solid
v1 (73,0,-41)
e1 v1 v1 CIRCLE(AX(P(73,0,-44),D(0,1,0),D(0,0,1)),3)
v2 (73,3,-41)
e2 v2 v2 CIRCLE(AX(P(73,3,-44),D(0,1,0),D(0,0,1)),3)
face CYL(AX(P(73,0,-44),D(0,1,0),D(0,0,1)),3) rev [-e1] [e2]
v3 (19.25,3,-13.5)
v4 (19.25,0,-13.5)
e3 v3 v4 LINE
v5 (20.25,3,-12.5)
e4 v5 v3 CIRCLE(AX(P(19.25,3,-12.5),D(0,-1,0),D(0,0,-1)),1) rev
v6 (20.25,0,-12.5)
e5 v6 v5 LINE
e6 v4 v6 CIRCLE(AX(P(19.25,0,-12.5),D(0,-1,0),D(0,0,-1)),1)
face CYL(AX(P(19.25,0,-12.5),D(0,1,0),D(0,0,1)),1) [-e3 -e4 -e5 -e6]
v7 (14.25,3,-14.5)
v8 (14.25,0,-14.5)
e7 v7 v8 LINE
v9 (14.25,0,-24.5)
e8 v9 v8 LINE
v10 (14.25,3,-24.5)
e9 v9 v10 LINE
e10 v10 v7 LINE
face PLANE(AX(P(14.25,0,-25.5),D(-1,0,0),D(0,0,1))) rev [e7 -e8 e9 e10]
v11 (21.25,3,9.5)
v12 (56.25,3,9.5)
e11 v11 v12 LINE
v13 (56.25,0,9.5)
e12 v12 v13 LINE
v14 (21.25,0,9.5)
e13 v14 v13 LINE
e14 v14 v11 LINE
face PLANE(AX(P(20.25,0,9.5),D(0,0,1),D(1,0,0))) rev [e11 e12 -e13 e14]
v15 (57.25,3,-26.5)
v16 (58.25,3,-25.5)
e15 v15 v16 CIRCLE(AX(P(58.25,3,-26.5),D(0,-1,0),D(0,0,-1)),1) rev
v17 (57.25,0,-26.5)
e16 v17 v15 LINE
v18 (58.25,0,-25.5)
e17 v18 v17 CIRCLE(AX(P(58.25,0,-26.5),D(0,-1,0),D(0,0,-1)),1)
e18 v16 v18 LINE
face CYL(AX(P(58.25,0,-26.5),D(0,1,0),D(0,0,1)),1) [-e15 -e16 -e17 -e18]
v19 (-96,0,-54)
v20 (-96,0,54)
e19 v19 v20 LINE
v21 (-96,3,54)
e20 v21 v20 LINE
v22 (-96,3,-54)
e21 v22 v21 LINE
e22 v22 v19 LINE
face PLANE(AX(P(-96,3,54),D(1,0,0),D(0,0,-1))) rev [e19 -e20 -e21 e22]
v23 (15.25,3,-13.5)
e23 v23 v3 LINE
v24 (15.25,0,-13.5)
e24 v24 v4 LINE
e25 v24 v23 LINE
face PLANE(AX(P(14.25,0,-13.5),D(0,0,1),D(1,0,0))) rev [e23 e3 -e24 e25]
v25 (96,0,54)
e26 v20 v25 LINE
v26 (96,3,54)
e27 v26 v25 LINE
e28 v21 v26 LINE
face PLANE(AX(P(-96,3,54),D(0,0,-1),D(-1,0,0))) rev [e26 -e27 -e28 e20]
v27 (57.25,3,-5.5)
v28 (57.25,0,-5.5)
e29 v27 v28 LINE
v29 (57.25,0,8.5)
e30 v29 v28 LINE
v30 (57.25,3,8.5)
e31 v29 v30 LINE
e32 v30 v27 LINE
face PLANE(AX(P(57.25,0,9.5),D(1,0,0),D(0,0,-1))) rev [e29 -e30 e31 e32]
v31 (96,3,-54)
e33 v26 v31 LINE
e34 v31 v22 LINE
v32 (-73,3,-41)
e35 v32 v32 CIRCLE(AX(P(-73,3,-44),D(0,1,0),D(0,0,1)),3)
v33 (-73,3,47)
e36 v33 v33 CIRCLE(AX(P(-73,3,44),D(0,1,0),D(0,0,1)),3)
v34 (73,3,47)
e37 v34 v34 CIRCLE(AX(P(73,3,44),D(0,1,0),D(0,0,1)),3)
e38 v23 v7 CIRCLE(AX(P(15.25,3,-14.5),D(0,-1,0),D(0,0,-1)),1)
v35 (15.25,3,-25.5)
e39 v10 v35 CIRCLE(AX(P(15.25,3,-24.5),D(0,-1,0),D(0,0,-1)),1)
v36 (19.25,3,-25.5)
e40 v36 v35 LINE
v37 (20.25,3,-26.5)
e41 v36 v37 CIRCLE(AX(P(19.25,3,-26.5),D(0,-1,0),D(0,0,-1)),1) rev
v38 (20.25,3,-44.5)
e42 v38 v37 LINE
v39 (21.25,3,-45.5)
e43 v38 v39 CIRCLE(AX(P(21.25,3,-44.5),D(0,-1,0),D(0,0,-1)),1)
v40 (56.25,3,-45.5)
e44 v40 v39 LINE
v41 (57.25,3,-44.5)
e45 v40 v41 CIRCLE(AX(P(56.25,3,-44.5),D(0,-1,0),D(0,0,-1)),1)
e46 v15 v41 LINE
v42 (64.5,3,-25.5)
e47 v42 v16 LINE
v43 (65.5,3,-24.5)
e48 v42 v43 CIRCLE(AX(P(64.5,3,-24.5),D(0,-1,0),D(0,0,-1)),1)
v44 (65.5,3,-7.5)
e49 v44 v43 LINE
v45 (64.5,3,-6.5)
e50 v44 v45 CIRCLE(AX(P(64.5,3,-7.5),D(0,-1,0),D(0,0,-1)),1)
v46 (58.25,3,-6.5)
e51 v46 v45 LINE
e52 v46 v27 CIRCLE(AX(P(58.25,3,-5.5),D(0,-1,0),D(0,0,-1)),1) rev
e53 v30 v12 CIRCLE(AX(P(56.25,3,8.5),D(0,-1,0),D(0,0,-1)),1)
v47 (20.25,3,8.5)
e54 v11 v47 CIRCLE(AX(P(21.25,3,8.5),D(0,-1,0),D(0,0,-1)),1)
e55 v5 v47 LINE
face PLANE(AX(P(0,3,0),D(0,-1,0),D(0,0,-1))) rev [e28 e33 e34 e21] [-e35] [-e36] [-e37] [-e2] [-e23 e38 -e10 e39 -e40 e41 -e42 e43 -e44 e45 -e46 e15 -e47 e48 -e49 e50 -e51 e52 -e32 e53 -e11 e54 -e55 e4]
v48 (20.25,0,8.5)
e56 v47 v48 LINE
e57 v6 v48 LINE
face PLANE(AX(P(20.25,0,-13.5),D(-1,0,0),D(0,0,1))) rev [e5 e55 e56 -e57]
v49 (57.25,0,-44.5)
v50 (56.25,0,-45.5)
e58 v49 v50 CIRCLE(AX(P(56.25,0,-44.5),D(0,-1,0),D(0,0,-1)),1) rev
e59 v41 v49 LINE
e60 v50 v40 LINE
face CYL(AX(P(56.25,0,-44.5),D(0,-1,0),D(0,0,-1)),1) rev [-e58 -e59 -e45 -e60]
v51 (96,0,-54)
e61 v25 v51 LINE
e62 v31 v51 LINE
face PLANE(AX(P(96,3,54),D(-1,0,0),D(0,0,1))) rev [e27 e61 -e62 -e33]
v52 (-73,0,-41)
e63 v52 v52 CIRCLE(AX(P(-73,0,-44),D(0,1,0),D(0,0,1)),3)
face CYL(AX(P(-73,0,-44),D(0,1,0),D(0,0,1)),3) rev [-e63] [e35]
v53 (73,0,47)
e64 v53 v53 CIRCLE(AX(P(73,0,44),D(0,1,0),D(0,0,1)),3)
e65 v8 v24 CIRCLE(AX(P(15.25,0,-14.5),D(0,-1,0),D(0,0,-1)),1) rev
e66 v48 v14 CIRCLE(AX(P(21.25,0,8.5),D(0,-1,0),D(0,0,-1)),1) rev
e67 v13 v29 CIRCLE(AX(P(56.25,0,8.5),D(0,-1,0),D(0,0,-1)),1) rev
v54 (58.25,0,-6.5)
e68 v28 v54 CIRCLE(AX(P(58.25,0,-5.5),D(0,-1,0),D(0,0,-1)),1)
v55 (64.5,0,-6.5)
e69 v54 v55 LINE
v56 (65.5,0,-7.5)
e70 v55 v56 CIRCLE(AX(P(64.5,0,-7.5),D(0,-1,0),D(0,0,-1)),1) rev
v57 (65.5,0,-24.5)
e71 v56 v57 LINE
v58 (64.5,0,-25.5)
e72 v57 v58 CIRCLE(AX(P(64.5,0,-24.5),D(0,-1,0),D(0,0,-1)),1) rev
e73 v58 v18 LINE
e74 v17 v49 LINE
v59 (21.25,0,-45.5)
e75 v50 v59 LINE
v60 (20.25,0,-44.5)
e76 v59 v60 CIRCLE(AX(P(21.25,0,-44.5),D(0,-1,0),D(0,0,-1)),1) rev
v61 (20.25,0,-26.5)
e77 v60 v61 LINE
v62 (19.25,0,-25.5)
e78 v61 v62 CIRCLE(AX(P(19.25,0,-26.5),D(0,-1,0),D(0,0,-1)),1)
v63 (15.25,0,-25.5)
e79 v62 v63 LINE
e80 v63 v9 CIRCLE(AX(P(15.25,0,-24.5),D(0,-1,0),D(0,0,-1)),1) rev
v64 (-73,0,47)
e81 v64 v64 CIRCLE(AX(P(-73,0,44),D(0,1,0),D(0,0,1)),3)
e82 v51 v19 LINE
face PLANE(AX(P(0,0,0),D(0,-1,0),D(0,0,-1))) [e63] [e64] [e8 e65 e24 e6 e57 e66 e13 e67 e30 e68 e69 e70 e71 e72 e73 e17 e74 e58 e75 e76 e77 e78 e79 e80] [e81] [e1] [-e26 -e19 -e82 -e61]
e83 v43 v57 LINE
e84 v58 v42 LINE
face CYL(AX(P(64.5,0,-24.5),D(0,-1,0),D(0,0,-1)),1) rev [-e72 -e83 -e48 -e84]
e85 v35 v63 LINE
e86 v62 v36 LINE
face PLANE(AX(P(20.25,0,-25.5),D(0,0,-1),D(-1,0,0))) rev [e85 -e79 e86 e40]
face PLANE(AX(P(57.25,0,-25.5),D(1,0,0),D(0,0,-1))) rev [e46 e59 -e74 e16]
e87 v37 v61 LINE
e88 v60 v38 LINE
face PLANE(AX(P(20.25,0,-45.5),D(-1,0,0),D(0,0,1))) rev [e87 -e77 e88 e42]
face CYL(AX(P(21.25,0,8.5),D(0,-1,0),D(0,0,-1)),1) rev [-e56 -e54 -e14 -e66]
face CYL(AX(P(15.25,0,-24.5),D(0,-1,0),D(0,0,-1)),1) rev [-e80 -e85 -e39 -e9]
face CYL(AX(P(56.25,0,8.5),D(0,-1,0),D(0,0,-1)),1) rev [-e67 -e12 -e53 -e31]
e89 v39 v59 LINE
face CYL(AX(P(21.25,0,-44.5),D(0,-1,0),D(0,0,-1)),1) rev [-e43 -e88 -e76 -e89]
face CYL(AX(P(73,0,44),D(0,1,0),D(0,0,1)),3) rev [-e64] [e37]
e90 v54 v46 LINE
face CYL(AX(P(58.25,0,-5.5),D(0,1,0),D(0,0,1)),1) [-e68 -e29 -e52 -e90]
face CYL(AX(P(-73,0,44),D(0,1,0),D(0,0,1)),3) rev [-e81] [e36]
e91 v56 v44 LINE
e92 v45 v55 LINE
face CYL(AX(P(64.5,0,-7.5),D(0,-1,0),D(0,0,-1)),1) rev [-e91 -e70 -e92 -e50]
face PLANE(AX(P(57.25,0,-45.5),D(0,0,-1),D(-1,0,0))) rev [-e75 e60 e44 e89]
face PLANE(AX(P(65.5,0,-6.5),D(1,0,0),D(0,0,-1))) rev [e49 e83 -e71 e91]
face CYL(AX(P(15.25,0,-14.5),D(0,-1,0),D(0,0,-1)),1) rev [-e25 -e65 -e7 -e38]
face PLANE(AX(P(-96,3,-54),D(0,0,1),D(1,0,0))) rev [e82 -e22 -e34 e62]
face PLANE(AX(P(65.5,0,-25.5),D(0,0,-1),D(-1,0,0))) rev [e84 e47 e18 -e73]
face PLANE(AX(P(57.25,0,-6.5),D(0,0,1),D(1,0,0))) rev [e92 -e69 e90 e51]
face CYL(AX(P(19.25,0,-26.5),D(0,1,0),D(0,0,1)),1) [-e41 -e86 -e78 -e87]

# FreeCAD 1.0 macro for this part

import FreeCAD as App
import Part
import Sketcher


def edges_at(feature, points):
    """Names of the edges that pass closest to the given points."""
    edges = feature.Shape.Edges
    near = lambda p: min(range(len(edges)), key=lambda i: edges[i].distToShape(Part.Vertex(*p))[0])
    return sorted({f"Edge{near(p) + 1}" for p in points})


def add_polygon(sketch, points):
    """Adds a closed chain of lines whose ends are joined by coincident constraints."""
    first, n = sketch.GeometryCount, len(points)
    for a, b in zip(points, points[1:] + points[:1]):
        sketch.addGeometry(Part.LineSegment(App.Vector(*a, 0), App.Vector(*b, 0)), False)
    for i in range(n):
        sketch.addConstraint(Sketcher.Constraint("Coincident", first + i, 2, first + (i + 1) % n, 1))

doc = App.newDocument("Part")
params = doc.addObject("Spreadsheet::Sheet", "Params")
for row, (alias, value) in enumerate([
    ("sketch1_width", "192 mm"),
    ("sketch1_height", "108 mm"),
    ("pad1_length", "3 mm"),
    ("sketch2_diameter", "6 mm"),
    ("sketch2_width", "6 mm"),
    ("sketch2_width2", "37 mm"),
    ("sketch2_height", "20 mm"),
    ("sketch2_height2", "12 mm"),
    ("fillet_radius", "1 mm"),
], start=1):
    params.set(f"A{row}", alias)
    params.set(f"B{row}", "=" + value)
    params.setAlias(f"B{row}", alias)

body = doc.addObject("PartDesign::Body", "Body")

# Sketch on XZ plane
sketch1 = body.newObject("Sketcher::SketchObject", "Sketch")
sketch1.AttachmentSupport = (doc.getObject("XZ_Plane"), [""])
sketch1.MapMode = "FlatFace"
add_polygon(sketch1, [(-96, -54), (-96, 54), (96, 54), (96, -54)])  # lines 0-3
sketch1.addConstraint(Sketcher.Constraint("Vertical", 0))
sketch1.addConstraint(Sketcher.Constraint("Horizontal", 1))
sketch1.addConstraint(Sketcher.Constraint("Vertical", 2))
sketch1.addConstraint(Sketcher.Constraint("Horizontal", 3))
sketch1.addConstraint(Sketcher.Constraint("Symmetric", 0, 2, 2, 2, -1, 1))
sketch1.addConstraint(Sketcher.Constraint("DistanceX", 1, 1, 1, 2, 192.0))
sketch1.addConstraint(Sketcher.Constraint("DistanceY", 0, 1, 0, 2, 108.0))
sketch1.setExpression("Constraints[9]", "Params.sketch1_width")
sketch1.setExpression("Constraints[10]", "Params.sketch1_height")
pad1 = body.newObject("PartDesign::Pad", "Pad")
pad1.Profile = sketch1
pad1.setExpression("Length", "Params.pad1_length")
pad1.Reversed = True

# Sketch on XZ plane
sketch2 = body.newObject("Sketcher::SketchObject", "Sketch001")
sketch2.AttachmentSupport = (doc.getObject("XZ_Plane"), [""])
sketch2.MapMode = "FlatFace"
sketch2.AttachmentOffset = App.Placement(App.Vector(0, 0, -3), App.Rotation())
sketch2.addGeometry(Part.Circle(App.Vector(-73, -44, 0), App.Vector(0, 0, 1), 3), False)  # 0
sketch2.addGeometry(Part.Circle(App.Vector(73, -44, 0), App.Vector(0, 0, 1), 3), False)  # 1
sketch2.addGeometry(Part.Circle(App.Vector(-73, 44, 0), App.Vector(0, 0, 1), 3), False)  # 2
sketch2.addGeometry(Part.Circle(App.Vector(73, 44, 0), App.Vector(0, 0, 1), 3), False)  # 3
add_polygon(sketch2, [(20.2, -45.5), (20.2, -25.5), (14.2, -25.5), (14.2, -13.5), (20.2, -13.5), (20.2, 9.5), (57.2, 9.5), (57.2, -6.5), (65.5, -6.5), (65.5, -25.5), (57.2, -25.5), (57.2, -45.5)])  # lines 4-15
sketch2.addConstraint(Sketcher.Constraint("Vertical", 4))
sketch2.addConstraint(Sketcher.Constraint("Horizontal", 5))
sketch2.addConstraint(Sketcher.Constraint("Vertical", 6))
sketch2.addConstraint(Sketcher.Constraint("Horizontal", 7))
sketch2.addConstraint(Sketcher.Constraint("Vertical", 8))
sketch2.addConstraint(Sketcher.Constraint("Horizontal", 9))
sketch2.addConstraint(Sketcher.Constraint("Vertical", 10))
sketch2.addConstraint(Sketcher.Constraint("Horizontal", 11))
sketch2.addConstraint(Sketcher.Constraint("Vertical", 12))
sketch2.addConstraint(Sketcher.Constraint("Horizontal", 13))
sketch2.addConstraint(Sketcher.Constraint("Vertical", 14))
sketch2.addConstraint(Sketcher.Constraint("Horizontal", 15))
sketch2.addConstraint(Sketcher.Constraint("Equal", 0, 1))
sketch2.addConstraint(Sketcher.Constraint("Equal", 1, 2))
sketch2.addConstraint(Sketcher.Constraint("Equal", 2, 3))
sketch2.addConstraint(Sketcher.Constraint("Symmetric", 1, 3, 2, 3, -1, 1))
sketch2.addConstraint(Sketcher.Constraint("Symmetric", 0, 3, 3, 3, -1, 1))
sketch2.addConstraint(Sketcher.Constraint("Symmetric", 0, 3, 1, 3, -2))
sketch2.addConstraint(Sketcher.Constraint("Horizontal", 5, 2, 12, 2))
sketch2.addConstraint(Sketcher.Constraint("Vertical", 4, 2, 7, 2))
sketch2.addConstraint(Sketcher.Constraint("Vertical", 10, 2, 13, 2))
sketch2.addConstraint(Sketcher.Constraint("Diameter", 0, 6.0))
sketch2.addConstraint(Sketcher.Constraint("DistanceX", 5, 2, 5, 1, 6.0))
sketch2.addConstraint(Sketcher.Constraint("DistanceX", 9, 1, 9, 2, 37.0))
sketch2.addConstraint(Sketcher.Constraint("DistanceY", 4, 1, 4, 2, 20.0))
sketch2.addConstraint(Sketcher.Constraint("DistanceY", 6, 1, 6, 2, 12.0))
sketch2.addConstraint(Sketcher.Constraint("DistanceY", 8, 1, 8, 2, 23.0))
sketch2.addConstraint(Sketcher.Constraint("DistanceY", 10, 2, 10, 1, 16.0))
sketch2.addConstraint(Sketcher.Constraint("DistanceX", 0, 3, -1, 1, 73.0))
sketch2.addConstraint(Sketcher.Constraint("DistanceY", 0, 3, -1, 1, 44.0))
sketch2.addConstraint(Sketcher.Constraint("DistanceX", 11, 1, 11, 2, 8.25))
sketch2.addConstraint(Sketcher.Constraint("DistanceY", 4, 2, -1, 1, 25.5))
sketch2.addConstraint(Sketcher.Constraint("DistanceX", -1, 1, 11, 2, 65.5))
sketch2.setExpression("Constraints[33]", "Params.sketch2_diameter")
sketch2.setExpression("Constraints[34]", "Params.sketch2_width")
sketch2.setExpression("Constraints[35]", "Params.sketch2_width2")
sketch2.setExpression("Constraints[36]", "Params.sketch2_height")
sketch2.setExpression("Constraints[37]", "Params.sketch2_height2")
pocket1 = body.newObject("PartDesign::Pocket", "Pocket")
pocket1.Profile = sketch2
pocket1.Type = "ThroughAll"
pocket1.Reversed = True
doc.recompute()

fillet = body.newObject("PartDesign::Fillet", "Fillet")
fillet.Base = (pocket1, edges_at(pocket1, [
    (20.25, 1.5, -45.5),
    (57.25, 1.5, -45.5),
    (57.25, 1.5, -25.5),
    (65.5, 1.5, -25.5),
    (65.5, 1.5, -6.5),
    (57.25, 1.5, -6.5),
    (57.25, 1.5, 9.5),
    (20.25, 1.5, 9.5),
    (20.25, 1.5, -13.5),
    (14.25, 1.5, -13.5),
    (14.25, 1.5, -25.5),
    (20.25, 1.5, -25.5),
]))
fillet.setExpression("Radius", "Params.fillet_radius")

doc.recompute()
